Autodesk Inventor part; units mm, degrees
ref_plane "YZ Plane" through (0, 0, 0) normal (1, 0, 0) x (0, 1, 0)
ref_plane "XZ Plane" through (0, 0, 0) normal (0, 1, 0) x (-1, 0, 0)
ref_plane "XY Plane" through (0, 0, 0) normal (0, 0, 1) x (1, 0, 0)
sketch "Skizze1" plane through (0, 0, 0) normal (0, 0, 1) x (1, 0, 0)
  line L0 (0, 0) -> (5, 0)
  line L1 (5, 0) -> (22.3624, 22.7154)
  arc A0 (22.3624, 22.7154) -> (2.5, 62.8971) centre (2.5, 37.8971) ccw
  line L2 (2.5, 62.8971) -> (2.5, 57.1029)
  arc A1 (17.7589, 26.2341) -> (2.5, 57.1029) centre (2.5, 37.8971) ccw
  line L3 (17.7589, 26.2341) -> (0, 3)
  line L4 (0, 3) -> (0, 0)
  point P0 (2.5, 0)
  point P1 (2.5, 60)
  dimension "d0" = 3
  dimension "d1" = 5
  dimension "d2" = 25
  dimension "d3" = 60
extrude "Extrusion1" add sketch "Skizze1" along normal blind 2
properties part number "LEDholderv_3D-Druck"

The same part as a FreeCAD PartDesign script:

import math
import FreeCAD as App
import Part
import Sketcher
Q = App.Units.Quantity

doc = App.newDocument("Part")
body = doc.addObject("PartDesign::Body", "Body")

sketch1 = body.newObject("Sketcher::SketchObject", "Sketch")
sketch1.AttachmentSupport = (doc.getObject("XY_Plane"), [""])
sketch1.MapMode = "FlatFace"
sketch1.addGeometry([
    Part.LineSegment(App.Vector(0, 3, 0), App.Vector(0, 0, 0)),
    Part.LineSegment(App.Vector(0, 0, 0), App.Vector(5, 0, 0)),
    Part.LineSegment(App.Vector(5, 0, 0), App.Vector(22.3624, 22.7154, 0)),
    Part.ArcOfCircle(Part.Circle(App.Vector(2.5, 37.8971, 0), App.Vector(0, 0, 1), 24.999979), math.radians(-37.392259), math.radians(90)),
    Part.LineSegment(App.Vector(2.5, 62.8971, 0), App.Vector(2.5, 57.1029, 0)),
    Part.ArcOfCircle(Part.Circle(App.Vector(2.5, 37.8971, 0), App.Vector(0, 0, 1), 19.205718), math.radians(-37.392156), math.radians(90)),
    Part.LineSegment(App.Vector(17.7589, 26.2341, 0), App.Vector(0, 3, 0)),
], False)
sketch1.addConstraint([
    Sketcher.Constraint("Coincident", 0, 2, 1, 1),
    Sketcher.Constraint("Coincident", 1, 2, 2, 1),
    Sketcher.Constraint("Tangent", 2, 2, 3, 1),
    Sketcher.Constraint("Coincident", 3, 2, 4, 1),
    Sketcher.Constraint("Coincident", 4, 2, 5, 2),
    Sketcher.Constraint("Tangent", 5, 1, 6, 1),
    Sketcher.Constraint("Coincident", 6, 2, 0, 1),
    Sketcher.Constraint("Vertical", 0),
    Sketcher.Constraint("Horizontal", 1),
    Sketcher.Constraint("Vertical", 4),
    Sketcher.Constraint("Coincident", 0, 2, -1, 1),
    Sketcher.Constraint("Coincident", 5, 3, 3, 3),
    Sketcher.Constraint("Parallel", 2, 6),
    Sketcher.Constraint("Vertical", 5, 3, 3, 2),
    Sketcher.Constraint("Radius", 3, Q("25 mm")),
    Sketcher.Constraint("DistanceX", 1, 1, 1, 2, Q("5 mm")),
    Sketcher.Constraint("DistanceY", 0, 2, 0, 1, Q("3 mm")),
    Sketcher.Constraint("DistanceX", -1, 1, 3, 3, Q("2.5 mm")),
    Sketcher.Constraint("Radius", 5, Q("19.2057 mm")),
])
pad1 = body.newObject("PartDesign::Pad", "Pad")
pad1.Profile = sketch1
pad1.Length = 2

doc.recompute()
